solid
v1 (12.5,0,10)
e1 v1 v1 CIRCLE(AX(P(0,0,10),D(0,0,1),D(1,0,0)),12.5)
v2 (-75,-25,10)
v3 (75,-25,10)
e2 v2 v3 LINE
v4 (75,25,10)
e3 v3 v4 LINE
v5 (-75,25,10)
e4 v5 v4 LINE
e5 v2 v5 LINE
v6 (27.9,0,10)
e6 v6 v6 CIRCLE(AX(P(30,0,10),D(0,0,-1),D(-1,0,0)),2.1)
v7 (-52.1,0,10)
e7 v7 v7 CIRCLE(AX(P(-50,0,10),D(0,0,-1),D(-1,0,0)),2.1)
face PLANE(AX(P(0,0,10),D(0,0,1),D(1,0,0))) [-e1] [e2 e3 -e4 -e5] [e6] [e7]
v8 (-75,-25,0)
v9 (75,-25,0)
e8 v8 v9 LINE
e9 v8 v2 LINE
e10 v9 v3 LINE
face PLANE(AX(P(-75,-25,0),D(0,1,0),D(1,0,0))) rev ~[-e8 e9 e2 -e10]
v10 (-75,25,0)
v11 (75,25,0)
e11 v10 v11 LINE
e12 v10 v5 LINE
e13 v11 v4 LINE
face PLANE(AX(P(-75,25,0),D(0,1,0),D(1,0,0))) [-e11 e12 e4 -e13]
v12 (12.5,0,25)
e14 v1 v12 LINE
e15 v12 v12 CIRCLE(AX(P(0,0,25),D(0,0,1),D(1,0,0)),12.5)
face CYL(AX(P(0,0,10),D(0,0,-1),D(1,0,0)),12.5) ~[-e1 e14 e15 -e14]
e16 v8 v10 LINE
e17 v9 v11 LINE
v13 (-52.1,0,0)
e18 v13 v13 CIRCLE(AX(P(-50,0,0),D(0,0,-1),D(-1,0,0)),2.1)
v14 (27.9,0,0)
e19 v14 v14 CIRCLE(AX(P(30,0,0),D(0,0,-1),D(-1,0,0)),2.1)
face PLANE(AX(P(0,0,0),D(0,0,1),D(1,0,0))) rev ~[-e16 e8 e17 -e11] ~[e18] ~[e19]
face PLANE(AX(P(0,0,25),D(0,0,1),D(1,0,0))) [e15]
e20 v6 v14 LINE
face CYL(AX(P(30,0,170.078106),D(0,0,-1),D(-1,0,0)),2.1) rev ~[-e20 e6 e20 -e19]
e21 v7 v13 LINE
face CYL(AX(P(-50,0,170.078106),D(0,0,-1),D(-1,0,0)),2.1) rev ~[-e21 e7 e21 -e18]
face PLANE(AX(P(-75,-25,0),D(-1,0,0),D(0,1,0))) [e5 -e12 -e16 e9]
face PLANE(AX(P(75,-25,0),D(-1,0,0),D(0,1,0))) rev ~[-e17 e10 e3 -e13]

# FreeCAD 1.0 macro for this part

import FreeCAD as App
import Part
import Sketcher

V = App.Vector
Q = App.Units.Quantity

doc = App.newDocument("Part")
body = doc.addObject("PartDesign::Body", "Body")

# Sketch on XY plane
sketch1 = body.newObject("Sketcher::SketchObject", "Sketch")
sketch1.AttachmentSupport = (doc.getObject("XY_Plane"), [""])
sketch1.MapMode = "FlatFace"
sketch1.addGeometry([
    Part.LineSegment(V(-75, 25, 0), V(-75, -25, 0)),
    Part.LineSegment(V(-75, -25, 0), V(75, -25, 0)),
    Part.LineSegment(V(75, -25, 0), V(75, 25, 0)),
    Part.LineSegment(V(75, 25, 0), V(-75, 25, 0)),
], False)
sketch1.addConstraint([
    Sketcher.Constraint("Coincident", 0, 2, 1, 1),
    Sketcher.Constraint("Coincident", 1, 2, 2, 1),
    Sketcher.Constraint("Coincident", 2, 2, 3, 1),
    Sketcher.Constraint("Coincident", 3, 2, 0, 1),
    Sketcher.Constraint("Vertical", 0),
    Sketcher.Constraint("Horizontal", 1),
    Sketcher.Constraint("Vertical", 2),
    Sketcher.Constraint("Horizontal", 3),
    Sketcher.Constraint("Symmetric", 0, 2, 2, 2, -1, 1),
    Sketcher.Constraint("DistanceX", 1, 1, 1, 2, Q("150 mm")),
    Sketcher.Constraint("DistanceY", 0, 2, 0, 1, Q("50 mm")),
])
pad1 = body.newObject("PartDesign::Pad", "Pad")
pad1.Profile = sketch1
pad1.Length = 10

# Sketch on XY plane
sketch2 = body.newObject("Sketcher::SketchObject", "Sketch001")
sketch2.AttachmentSupport = (doc.getObject("XY_Plane"), [""])
sketch2.MapMode = "FlatFace"
sketch2.AttachmentOffset = App.Placement(V(0, 0, 10), App.Rotation())
sketch2.addGeometry(Part.Circle(V(0, 0, 0), V(0, 0, 1), 12.5), False)
sketch2.addConstraint([
    Sketcher.Constraint("Coincident", 0, 3, -1, 1),
    Sketcher.Constraint("Diameter", 0, Q("25 mm")),
])
pad2 = body.newObject("PartDesign::Pad", "Pad001")
pad2.Profile = sketch2
pad2.Length = 15

# Sketch on XY plane
sketch3 = body.newObject("Sketcher::SketchObject", "Sketch002")
sketch3.AttachmentSupport = (doc.getObject("XY_Plane"), [""])
sketch3.MapMode = "FlatFace"
sketch3.AttachmentOffset = App.Placement(V(0, 0, 10), App.Rotation())
sketch3.addGeometry([
    Part.Circle(V(-50, 0, 0), V(0, 0, 1), 2.1),
    Part.Circle(V(30, 0, 0), V(0, 0, 1), 2.1),
], False)
sketch3.addConstraint([
    Sketcher.Constraint("Equal", 0, 1),
    Sketcher.Constraint("PointOnObject", 0, 3, -1),
    Sketcher.Constraint("PointOnObject", 1, 3, -1),
    Sketcher.Constraint("Diameter", 0, Q("4.2 mm")),
    Sketcher.Constraint("DistanceX", 0, 3, -1, 1, Q("50 mm")),
    Sketcher.Constraint("DistanceX", -1, 1, 1, 3, Q("30 mm")),
])
doc.recompute()
hole = body.newObject("PartDesign::Hole", "Hole")
hole.Profile = sketch3
hole.ThreadType = "None"
hole.Diameter = 4.2
hole.DepthType = "ThroughAll"

doc.recompute()
